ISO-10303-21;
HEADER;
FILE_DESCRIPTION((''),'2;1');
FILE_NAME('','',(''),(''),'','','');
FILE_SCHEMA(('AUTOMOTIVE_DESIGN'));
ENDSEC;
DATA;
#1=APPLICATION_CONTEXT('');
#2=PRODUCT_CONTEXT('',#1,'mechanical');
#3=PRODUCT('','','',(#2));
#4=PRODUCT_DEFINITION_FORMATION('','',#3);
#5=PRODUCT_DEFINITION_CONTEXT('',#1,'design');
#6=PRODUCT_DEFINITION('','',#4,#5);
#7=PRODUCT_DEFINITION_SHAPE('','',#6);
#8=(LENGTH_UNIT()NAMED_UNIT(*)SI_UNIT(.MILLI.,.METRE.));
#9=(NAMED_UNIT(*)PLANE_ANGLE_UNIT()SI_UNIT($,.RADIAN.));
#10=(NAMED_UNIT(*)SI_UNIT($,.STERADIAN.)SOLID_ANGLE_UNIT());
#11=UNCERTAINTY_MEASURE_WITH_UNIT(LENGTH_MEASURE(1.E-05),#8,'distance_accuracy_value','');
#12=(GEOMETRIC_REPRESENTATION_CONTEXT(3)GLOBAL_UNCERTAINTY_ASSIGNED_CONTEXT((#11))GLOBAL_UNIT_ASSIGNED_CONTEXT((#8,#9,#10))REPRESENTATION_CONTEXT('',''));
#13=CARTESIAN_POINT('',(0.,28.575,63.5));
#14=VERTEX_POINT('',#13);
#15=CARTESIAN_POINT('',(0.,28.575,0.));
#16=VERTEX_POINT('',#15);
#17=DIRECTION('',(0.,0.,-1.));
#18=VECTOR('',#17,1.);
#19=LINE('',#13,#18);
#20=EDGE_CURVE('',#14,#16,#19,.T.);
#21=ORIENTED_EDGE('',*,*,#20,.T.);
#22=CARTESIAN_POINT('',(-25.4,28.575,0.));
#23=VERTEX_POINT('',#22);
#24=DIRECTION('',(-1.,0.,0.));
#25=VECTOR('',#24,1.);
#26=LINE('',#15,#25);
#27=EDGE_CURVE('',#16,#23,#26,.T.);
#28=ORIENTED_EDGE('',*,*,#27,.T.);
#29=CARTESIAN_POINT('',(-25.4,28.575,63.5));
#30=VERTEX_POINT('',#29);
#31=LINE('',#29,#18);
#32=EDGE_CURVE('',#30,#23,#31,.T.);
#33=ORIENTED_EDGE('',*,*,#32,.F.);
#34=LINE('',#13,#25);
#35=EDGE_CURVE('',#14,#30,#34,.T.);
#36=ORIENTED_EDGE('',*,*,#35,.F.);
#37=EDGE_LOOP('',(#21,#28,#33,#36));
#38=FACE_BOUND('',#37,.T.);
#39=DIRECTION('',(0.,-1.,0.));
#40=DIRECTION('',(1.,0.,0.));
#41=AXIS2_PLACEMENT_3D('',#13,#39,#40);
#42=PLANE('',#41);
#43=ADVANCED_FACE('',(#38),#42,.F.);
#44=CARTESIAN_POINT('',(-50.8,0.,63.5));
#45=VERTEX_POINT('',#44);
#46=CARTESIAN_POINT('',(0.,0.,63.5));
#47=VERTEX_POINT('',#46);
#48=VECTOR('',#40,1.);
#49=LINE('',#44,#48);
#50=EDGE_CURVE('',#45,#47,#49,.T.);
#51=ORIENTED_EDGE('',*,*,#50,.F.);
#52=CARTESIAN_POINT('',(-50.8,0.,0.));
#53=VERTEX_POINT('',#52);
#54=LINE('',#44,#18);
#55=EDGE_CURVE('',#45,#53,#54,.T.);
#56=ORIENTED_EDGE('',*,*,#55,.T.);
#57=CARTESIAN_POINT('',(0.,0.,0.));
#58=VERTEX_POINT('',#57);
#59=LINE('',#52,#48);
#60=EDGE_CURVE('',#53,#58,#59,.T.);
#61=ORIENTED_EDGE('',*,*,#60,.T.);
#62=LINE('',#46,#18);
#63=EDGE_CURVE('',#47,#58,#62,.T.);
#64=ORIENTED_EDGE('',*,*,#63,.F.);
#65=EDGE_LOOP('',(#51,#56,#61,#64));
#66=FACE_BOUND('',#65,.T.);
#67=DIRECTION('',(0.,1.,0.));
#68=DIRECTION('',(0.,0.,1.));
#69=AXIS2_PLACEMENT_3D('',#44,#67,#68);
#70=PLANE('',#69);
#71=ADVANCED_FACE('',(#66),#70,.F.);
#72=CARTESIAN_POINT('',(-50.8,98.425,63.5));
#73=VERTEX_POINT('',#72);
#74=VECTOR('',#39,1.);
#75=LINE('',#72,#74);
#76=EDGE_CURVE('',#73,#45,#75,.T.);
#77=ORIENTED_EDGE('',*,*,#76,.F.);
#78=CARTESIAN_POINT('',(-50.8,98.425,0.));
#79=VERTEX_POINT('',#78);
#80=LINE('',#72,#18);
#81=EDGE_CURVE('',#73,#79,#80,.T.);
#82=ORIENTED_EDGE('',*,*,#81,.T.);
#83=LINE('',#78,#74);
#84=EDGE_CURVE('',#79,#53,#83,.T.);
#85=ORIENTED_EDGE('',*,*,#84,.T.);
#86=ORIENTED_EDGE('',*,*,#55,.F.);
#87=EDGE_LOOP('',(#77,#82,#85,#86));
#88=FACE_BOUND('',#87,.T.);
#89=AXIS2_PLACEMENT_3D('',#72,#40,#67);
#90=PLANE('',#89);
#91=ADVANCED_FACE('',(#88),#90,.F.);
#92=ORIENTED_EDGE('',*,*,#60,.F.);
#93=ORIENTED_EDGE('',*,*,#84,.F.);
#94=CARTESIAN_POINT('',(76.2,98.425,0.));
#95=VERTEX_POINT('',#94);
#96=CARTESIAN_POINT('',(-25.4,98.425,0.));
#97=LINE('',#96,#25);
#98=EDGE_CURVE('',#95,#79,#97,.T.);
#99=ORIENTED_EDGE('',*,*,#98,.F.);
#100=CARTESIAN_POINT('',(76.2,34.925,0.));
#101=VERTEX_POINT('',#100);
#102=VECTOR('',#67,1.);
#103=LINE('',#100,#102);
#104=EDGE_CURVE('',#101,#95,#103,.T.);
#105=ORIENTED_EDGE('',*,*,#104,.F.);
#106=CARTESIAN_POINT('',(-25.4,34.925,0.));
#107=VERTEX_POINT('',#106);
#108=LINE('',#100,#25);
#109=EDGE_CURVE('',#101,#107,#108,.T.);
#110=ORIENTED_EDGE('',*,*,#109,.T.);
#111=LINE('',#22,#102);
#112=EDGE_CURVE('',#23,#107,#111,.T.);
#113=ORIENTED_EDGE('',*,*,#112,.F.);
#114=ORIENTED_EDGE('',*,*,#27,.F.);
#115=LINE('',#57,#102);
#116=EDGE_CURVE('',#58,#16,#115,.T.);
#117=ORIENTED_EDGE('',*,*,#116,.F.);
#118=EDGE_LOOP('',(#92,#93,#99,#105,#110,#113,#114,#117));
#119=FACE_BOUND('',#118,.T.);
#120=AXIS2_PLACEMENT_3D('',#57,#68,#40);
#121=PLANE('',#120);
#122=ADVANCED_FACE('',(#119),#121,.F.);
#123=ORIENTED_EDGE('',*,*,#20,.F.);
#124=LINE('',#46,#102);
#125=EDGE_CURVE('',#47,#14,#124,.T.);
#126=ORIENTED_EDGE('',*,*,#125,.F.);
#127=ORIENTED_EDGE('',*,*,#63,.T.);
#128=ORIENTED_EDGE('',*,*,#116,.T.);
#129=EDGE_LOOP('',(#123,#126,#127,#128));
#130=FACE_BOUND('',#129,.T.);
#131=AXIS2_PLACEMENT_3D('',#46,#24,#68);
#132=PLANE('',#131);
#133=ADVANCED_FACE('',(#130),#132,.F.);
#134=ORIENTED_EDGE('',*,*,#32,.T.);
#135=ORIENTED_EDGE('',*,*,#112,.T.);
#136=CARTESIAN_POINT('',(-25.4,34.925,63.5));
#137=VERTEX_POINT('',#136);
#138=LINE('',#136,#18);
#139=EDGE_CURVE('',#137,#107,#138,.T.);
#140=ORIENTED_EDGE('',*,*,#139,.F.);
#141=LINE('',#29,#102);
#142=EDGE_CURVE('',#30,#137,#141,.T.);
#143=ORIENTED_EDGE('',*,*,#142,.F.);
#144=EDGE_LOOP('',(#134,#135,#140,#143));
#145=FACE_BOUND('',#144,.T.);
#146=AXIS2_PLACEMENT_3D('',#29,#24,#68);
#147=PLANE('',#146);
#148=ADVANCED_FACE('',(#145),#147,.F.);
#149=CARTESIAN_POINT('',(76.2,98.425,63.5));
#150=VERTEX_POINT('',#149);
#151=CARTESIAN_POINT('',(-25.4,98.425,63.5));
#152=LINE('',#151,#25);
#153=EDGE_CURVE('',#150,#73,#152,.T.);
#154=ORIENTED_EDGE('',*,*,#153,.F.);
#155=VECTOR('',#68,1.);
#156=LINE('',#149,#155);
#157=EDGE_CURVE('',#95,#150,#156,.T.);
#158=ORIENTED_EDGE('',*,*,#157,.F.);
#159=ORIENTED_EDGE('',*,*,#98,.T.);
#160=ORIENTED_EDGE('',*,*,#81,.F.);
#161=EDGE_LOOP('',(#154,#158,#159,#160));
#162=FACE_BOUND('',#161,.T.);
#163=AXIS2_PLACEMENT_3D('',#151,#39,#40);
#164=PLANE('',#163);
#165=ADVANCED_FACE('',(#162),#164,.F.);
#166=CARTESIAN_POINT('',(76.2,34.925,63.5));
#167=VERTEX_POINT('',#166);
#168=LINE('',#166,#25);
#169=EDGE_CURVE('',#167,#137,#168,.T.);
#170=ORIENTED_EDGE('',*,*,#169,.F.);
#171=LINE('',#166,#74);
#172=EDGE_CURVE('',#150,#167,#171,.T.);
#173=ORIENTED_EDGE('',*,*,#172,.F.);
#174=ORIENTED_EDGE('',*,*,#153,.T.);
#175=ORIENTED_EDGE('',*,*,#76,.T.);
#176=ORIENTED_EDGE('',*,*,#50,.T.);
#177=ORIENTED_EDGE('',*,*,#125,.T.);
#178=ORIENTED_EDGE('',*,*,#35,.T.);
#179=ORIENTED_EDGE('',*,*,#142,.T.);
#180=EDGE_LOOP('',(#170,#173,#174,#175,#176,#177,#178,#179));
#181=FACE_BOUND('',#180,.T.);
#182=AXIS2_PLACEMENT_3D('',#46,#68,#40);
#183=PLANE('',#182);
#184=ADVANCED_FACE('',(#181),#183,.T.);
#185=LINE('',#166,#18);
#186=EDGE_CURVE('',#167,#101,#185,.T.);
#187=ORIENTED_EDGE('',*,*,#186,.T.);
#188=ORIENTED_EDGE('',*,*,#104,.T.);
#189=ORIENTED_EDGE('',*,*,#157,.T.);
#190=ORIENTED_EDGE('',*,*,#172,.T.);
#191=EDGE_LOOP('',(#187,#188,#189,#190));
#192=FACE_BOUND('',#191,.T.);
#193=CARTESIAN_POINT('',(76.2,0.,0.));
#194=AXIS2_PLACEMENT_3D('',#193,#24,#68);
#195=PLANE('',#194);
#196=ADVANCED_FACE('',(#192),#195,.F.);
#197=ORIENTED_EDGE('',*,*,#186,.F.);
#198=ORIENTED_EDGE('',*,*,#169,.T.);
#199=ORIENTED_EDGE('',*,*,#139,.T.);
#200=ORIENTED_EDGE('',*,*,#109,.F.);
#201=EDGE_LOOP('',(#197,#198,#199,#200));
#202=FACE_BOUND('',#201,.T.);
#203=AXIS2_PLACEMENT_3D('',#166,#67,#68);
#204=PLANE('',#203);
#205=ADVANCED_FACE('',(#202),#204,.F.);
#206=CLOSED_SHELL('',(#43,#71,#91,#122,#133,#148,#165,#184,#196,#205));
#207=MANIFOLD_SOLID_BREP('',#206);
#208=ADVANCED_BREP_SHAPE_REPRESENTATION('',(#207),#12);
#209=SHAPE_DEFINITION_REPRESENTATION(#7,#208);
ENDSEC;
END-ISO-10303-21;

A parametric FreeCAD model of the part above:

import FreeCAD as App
import Part
import Sketcher
Q = App.Units.Quantity


def add_polygon(sketch, points):
    """Adds a closed chain of lines whose ends are joined by coincident constraints."""
    first, n = sketch.GeometryCount, len(points)
    for a, b in zip(points, points[1:] + points[:1]):
        sketch.addGeometry(Part.LineSegment(App.Vector(*a, 0), App.Vector(*b, 0)), False)
    for i in range(n):
        sketch.addConstraint(Sketcher.Constraint("Coincident", first + i, 2, first + (i + 1) % n, 1))

doc = App.newDocument("Part")
params = doc.addObject("Spreadsheet::Sheet", "Params")
for row, (alias, value) in enumerate([
    ("sketch1_width", "1 in"),
    ("sketch1_height", "2.75 in"),
    ("sketch1_height2", "1.125 in"),
    ("pad1_length", "2.5 in"),
    ("sketch2_width", "2.5 in"),
    ("pad2_length", "4 in"),
], start=1):
    params.set(f"A{row}", alias)
    params.set(f"B{row}", "=" + value)
    params.setAlias(f"B{row}", alias)

body = doc.addObject("PartDesign::Body", "Body")

# Sketch on XY plane
sketch1 = body.newObject("Sketcher::SketchObject", "Sketch")
sketch1.AttachmentSupport = (doc.getObject("XY_Plane"), [""])
sketch1.MapMode = "FlatFace"
add_polygon(sketch1, [(0, 0), (0, 29), (-25, 29), (-25, 98), (-51, 98), (-51, 0)])  # lines 0-5
sketch1.addConstraint(Sketcher.Constraint("Vertical", 0))
sketch1.addConstraint(Sketcher.Constraint("Horizontal", 1))
sketch1.addConstraint(Sketcher.Constraint("Vertical", 2))
sketch1.addConstraint(Sketcher.Constraint("Horizontal", 3))
sketch1.addConstraint(Sketcher.Constraint("Vertical", 4))
sketch1.addConstraint(Sketcher.Constraint("Horizontal", 5))
sketch1.addConstraint(Sketcher.Constraint("Coincident", 5, 2, -1, 1))
sketch1.addConstraint(Sketcher.Constraint("Equal", 1, 3))
sketch1.addConstraint(Sketcher.Constraint("DistanceX", 1, 2, 1, 1, Q("1 in")))
sketch1.addConstraint(Sketcher.Constraint("DistanceY", 2, 1, 2, 2, Q("2.75 in")))
sketch1.addConstraint(Sketcher.Constraint("DistanceY", 0, 1, 0, 2, Q("1.125 in")))
sketch1.setExpression("Constraints[14]", "Params.sketch1_width")
sketch1.setExpression("Constraints[15]", "Params.sketch1_height")
sketch1.setExpression("Constraints[16]", "Params.sketch1_height2")
pad1 = body.newObject("PartDesign::Pad", "Pad")
pad1.Profile = sketch1
pad1.setExpression("Length", "Params.pad1_length")

# Sketch on YZ plane
sketch2 = body.newObject("Sketcher::SketchObject", "Sketch001")
sketch2.AttachmentSupport = (doc.getObject("YZ_Plane"), [""])
sketch2.MapMode = "FlatFace"
sketch2.AttachmentOffset = App.Placement(App.Vector(0, 0, -1 * 25.4), App.Rotation())
add_polygon(sketch2, [(98, 64), (35, 64), (35, 0), (98, 0)])  # lines 0-3
sketch2.addConstraint(Sketcher.Constraint("Horizontal", 0))
sketch2.addConstraint(Sketcher.Constraint("Vertical", 1))
sketch2.addConstraint(Sketcher.Constraint("Horizontal", 2))
sketch2.addConstraint(Sketcher.Constraint("Vertical", 3))
sketch2.addConstraint(Sketcher.Constraint("PointOnObject", 1, 2, -1))
sketch2.addConstraint(Sketcher.Constraint("Equal", 2, 1))
sketch2.addConstraint(Sketcher.Constraint("DistanceX", 0, 2, 0, 1, Q("2.5 in")))
sketch2.addConstraint(Sketcher.Constraint("DistanceX", -1, 1, 0, 2, Q("1.375 in")))
sketch2.setExpression("Constraints[10]", "Params.sketch2_width")
pad2 = body.newObject("PartDesign::Pad", "Pad001")
pad2.Profile = sketch2
pad2.setExpression("Length", "Params.pad2_length")

doc.recompute()
